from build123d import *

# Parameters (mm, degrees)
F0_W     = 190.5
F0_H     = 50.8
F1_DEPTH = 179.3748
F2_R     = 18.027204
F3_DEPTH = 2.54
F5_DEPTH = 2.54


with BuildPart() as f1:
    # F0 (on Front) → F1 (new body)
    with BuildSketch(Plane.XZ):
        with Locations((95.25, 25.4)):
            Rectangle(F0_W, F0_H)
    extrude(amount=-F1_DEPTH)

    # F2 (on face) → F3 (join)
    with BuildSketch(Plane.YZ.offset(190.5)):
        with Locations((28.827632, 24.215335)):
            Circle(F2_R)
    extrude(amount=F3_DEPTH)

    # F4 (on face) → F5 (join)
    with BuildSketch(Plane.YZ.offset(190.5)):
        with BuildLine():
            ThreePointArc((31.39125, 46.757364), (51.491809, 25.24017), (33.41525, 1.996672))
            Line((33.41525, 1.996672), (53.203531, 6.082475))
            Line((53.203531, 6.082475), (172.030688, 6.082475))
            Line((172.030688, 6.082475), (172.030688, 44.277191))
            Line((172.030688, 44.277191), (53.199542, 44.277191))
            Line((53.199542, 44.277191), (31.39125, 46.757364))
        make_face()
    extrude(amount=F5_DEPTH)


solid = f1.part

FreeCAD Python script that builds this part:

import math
import FreeCAD as App
import Part
import Sketcher

V = App.Vector
Q = App.Units.Quantity


def add_polygon(sketch, points):
    """Adds a closed chain of lines whose ends are joined by coincident constraints."""
    first, n = sketch.GeometryCount, len(points)
    for a, b in zip(points, points[1:] + points[:1]):
        sketch.addGeometry(Part.LineSegment(App.Vector(*a, 0), App.Vector(*b, 0)), False)
    for i in range(n):
        sketch.addConstraint(Sketcher.Constraint("Coincident", first + i, 2, first + (i + 1) % n, 1))

doc = App.newDocument("Part")
body = doc.addObject("PartDesign::Body", "Body")

# Sketch on XZ plane
sketch1 = body.newObject("Sketcher::SketchObject", "Sketch")
sketch1.AttachmentSupport = (doc.getObject("XZ_Plane"), [""])
sketch1.MapMode = "FlatFace"
add_polygon(sketch1, [(0, 51), (0, 0), (190, 0), (190, 51)])  # lines 0-3
sketch1.addConstraint(Sketcher.Constraint("Vertical", 0))
sketch1.addConstraint(Sketcher.Constraint("Horizontal", 1))
sketch1.addConstraint(Sketcher.Constraint("Vertical", 2))
sketch1.addConstraint(Sketcher.Constraint("Horizontal", 3))
sketch1.addConstraint(Sketcher.Constraint("Coincident", 0, 2, -1, 1))
sketch1.addConstraint(Sketcher.Constraint("DistanceY", 0, 2, 0, 1, Q("2 in")))
sketch1.addConstraint(Sketcher.Constraint("DistanceX", 1, 1, 1, 2, Q("7.5 in")))
pad1 = body.newObject("PartDesign::Pad", "Pad")
pad1.Profile = sketch1
pad1.Length = Q("7.062 in")
pad1.Reversed = True

# Sketch on YZ plane
sketch2 = body.newObject("Sketcher::SketchObject", "Sketch001")
sketch2.AttachmentSupport = (doc.getObject("YZ_Plane"), [""])
sketch2.MapMode = "FlatFace"
sketch2.AttachmentOffset = App.Placement(V(0, 0, 7.5 * 25.4), App.Rotation())
sketch2.addGeometry(Part.Circle(V(29, 24, 0), V(0, 0, 1), 18), False)
sketch2.addConstraint(Sketcher.Constraint("Diameter", 0, 36.054408))
sketch2.addConstraint(Sketcher.Constraint("DistanceX", -1, 1, 0, 3, 28.827632))
sketch2.addConstraint(Sketcher.Constraint("DistanceY", -1, 1, 0, 3, 24.215335))
pad2 = body.newObject("PartDesign::Pad", "Pad001")
pad2.Profile = sketch2
pad2.Length = Q("0.1 in")

# Sketch on YZ plane
sketch3 = body.newObject("Sketcher::SketchObject", "Sketch002")
sketch3.AttachmentSupport = (doc.getObject("YZ_Plane"), [""])
sketch3.MapMode = "FlatFace"
sketch3.AttachmentOffset = App.Placement(V(0, 0, 7.5 * 25.4), App.Rotation())
sketch3.addGeometry(Part.ArcOfCircle(Part.Circle(V(29, 24, 0), V(0, 0, 1), 23), math.radians(-78), math.radians(84)), False)
sketch3.addGeometry(Part.LineSegment(V(33, 2, 0), V(53, 6, 0)), False)
sketch3.addGeometry(Part.LineSegment(V(53, 6, 0), V(172, 6, 0)), False)
sketch3.addGeometry(Part.LineSegment(V(172, 6, 0), V(172, 44, 0)), False)
sketch3.addGeometry(Part.LineSegment(V(172, 44, 0), V(53, 44, 0)), False)
sketch3.addGeometry(Part.LineSegment(V(53, 44, 0), V(31, 47, 0)), False)
sketch3.addConstraint(Sketcher.Constraint("Tangent", 0, 1, 1, 1))
sketch3.addConstraint(Sketcher.Constraint("Coincident", 1, 2, 2, 1))
sketch3.addConstraint(Sketcher.Constraint("Coincident", 2, 2, 3, 1))
sketch3.addConstraint(Sketcher.Constraint("Coincident", 3, 2, 4, 1))
sketch3.addConstraint(Sketcher.Constraint("Coincident", 4, 2, 5, 1))
sketch3.addConstraint(Sketcher.Constraint("Tangent", 5, 2, 0, 2))
sketch3.addConstraint(Sketcher.Constraint("Horizontal", 2))
sketch3.addConstraint(Sketcher.Constraint("Vertical", 3))
sketch3.addConstraint(Sketcher.Constraint("Horizontal", 4))
sketch3.addConstraint(Sketcher.Constraint("Radius", 0, 22.687336))
sketch3.addConstraint(Sketcher.Constraint("DistanceX", 0, 3, 1, 2, 24.375899))
sketch3.addConstraint(Sketcher.Constraint("DistanceX", 5, 2, 0, 1, 2.024))
sketch3.addConstraint(Sketcher.Constraint("Distance", 1, 20.205689))
sketch3.addConstraint(Sketcher.Constraint("Distance", 5, 21.948869))
sketch3.addConstraint(Sketcher.Constraint("DistanceX", 2, 1, 2, 2, 118.827157))
sketch3.addConstraint(Sketcher.Constraint("DistanceX", -1, 1, 0, 3, 28.827632))
sketch3.addConstraint(Sketcher.Constraint("DistanceY", -1, 1, 3, 2, 44.277191))
pad3 = body.newObject("PartDesign::Pad", "Pad002")
pad3.Profile = sketch3
pad3.Length = Q("0.1 in")

doc.recompute()
